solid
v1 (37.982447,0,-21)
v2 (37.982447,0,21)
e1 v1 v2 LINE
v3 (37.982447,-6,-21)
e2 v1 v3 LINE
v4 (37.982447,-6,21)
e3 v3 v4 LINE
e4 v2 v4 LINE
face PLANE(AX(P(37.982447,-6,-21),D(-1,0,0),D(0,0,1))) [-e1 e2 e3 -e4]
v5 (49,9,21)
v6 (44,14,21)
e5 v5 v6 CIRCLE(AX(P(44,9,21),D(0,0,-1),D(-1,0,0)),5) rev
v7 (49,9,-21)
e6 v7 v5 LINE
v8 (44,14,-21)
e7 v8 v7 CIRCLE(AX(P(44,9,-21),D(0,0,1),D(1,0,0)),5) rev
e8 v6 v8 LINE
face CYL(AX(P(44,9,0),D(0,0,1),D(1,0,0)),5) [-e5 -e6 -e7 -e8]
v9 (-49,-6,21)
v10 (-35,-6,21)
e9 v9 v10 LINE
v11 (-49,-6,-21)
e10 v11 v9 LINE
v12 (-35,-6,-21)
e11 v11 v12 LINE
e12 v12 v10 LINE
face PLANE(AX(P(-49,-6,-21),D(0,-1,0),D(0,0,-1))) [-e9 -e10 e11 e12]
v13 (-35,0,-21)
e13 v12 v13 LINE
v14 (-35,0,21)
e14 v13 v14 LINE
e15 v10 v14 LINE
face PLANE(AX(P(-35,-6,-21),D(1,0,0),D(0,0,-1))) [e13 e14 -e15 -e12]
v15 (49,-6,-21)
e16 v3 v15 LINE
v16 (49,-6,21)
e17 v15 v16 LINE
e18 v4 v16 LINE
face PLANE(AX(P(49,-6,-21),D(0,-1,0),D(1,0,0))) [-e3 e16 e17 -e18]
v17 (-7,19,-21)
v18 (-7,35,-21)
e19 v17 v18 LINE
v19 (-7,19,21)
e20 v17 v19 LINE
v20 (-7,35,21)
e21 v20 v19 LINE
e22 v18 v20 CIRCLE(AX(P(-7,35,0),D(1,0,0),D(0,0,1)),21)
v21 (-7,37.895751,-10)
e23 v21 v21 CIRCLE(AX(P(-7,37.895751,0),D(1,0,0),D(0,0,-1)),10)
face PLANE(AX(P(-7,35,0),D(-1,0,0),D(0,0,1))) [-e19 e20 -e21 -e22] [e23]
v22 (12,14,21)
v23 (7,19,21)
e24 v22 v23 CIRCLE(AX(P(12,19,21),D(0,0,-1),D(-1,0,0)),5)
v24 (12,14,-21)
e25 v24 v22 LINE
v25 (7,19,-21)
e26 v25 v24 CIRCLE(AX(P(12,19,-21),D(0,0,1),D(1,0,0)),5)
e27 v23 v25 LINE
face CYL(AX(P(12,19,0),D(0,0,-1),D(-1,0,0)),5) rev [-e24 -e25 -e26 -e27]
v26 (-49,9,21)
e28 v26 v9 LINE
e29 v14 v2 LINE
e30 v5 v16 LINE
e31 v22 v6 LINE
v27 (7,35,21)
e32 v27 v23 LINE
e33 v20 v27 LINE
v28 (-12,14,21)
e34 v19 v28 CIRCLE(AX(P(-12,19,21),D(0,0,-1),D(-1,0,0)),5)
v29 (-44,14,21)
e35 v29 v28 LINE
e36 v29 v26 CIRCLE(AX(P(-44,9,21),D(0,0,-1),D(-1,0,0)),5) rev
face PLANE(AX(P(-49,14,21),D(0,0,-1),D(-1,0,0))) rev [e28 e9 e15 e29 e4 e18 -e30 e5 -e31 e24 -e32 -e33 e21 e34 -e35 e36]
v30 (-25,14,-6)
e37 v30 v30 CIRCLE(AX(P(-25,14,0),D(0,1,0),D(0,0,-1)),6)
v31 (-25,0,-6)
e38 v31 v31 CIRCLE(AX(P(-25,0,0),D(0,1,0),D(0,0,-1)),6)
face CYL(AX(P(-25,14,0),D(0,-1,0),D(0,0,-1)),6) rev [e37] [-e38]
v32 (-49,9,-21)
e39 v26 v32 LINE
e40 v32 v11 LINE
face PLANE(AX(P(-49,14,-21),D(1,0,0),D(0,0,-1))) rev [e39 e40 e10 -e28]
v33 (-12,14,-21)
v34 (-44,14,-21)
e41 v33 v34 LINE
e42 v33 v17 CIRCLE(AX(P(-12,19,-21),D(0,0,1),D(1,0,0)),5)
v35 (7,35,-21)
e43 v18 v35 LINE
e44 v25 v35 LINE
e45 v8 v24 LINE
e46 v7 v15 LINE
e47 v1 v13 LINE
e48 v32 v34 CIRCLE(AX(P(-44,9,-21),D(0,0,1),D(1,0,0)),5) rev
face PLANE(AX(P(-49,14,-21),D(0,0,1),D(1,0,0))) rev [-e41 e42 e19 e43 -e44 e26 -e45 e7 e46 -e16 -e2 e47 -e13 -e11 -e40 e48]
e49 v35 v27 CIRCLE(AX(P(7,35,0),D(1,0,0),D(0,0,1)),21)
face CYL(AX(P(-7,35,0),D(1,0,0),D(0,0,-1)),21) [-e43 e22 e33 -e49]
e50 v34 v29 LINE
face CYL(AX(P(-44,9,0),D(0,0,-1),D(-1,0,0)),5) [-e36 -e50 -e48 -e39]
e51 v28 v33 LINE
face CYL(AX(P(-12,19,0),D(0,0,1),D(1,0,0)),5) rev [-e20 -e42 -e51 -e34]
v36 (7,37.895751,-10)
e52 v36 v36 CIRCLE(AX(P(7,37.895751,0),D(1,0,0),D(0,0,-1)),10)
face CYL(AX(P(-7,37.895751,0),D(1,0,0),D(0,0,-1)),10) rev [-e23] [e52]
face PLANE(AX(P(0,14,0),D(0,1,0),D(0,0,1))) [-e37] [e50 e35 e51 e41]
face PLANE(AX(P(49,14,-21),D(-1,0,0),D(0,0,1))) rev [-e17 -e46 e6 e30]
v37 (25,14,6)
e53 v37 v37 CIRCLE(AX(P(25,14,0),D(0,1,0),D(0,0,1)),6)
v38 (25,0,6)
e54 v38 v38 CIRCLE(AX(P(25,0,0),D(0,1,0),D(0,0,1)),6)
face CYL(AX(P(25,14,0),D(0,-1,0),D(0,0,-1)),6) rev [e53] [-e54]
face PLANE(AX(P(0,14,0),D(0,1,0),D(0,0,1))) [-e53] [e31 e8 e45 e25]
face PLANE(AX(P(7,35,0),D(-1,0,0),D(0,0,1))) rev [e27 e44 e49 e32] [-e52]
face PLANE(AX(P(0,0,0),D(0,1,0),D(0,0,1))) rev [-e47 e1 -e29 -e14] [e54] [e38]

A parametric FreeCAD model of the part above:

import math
import FreeCAD as App
import Part
import Sketcher
from FreeCAD import Vector


def edges_at(feature, points):
    """Names of the edges that pass closest to the given points."""
    edges = feature.Shape.Edges
    near = lambda p: min(range(len(edges)), key=lambda i: edges[i].distToShape(Part.Vertex(*p))[0])
    return sorted({f"Edge{near(p) + 1}" for p in points})

doc = App.newDocument("Part")
body = doc.addObject("PartDesign::Body", "Body")

sketch1 = body.newObject("Sketcher::SketchObject", "Sketch")
sketch1.AttachmentSupport = (doc.getObject("XZ_Plane"), [""])
sketch1.MapMode = "FlatFace"
sketch1.addGeometry(Part.LineSegment(Vector(-49, -21, 0), Vector(-49, 21, 0)), False)
sketch1.addGeometry(Part.LineSegment(Vector(-49, 21, 0), Vector(49, 21, 0)), False)
sketch1.addGeometry(Part.LineSegment(Vector(49, 21, 0), Vector(49, -21, 0)), False)
sketch1.addGeometry(Part.LineSegment(Vector(49, -21, 0), Vector(-49, -21, 0)), False)
sketch1.addConstraint(Sketcher.Constraint("Coincident", 0, 2, 1, 1))
sketch1.addConstraint(Sketcher.Constraint("Coincident", 1, 2, 2, 1))
sketch1.addConstraint(Sketcher.Constraint("Coincident", 2, 2, 3, 1))
sketch1.addConstraint(Sketcher.Constraint("Coincident", 3, 2, 0, 1))
sketch1.addConstraint(Sketcher.Constraint("Vertical", 0))
sketch1.addConstraint(Sketcher.Constraint("Horizontal", 1))
sketch1.addConstraint(Sketcher.Constraint("Vertical", 2))
sketch1.addConstraint(Sketcher.Constraint("Horizontal", 3))
sketch1.addConstraint(Sketcher.Constraint("Symmetric", 0, 2, 2, 2, -1, 1))
sketch1.addConstraint(Sketcher.Constraint("DistanceX", 1, 1, 1, 2, 98.0))
sketch1.addConstraint(Sketcher.Constraint("DistanceY", 0, 1, 0, 2, 42.0))
pad1 = body.newObject("PartDesign::Pad", "Pad")
pad1.Profile = sketch1
pad1.Length = 14
pad1.Reversed = True

sketch2 = body.newObject("Sketcher::SketchObject", "Sketch001")
sketch2.AttachmentSupport = (doc.getObject("XY_Plane"), [""])
sketch2.MapMode = "FlatFace"
sketch2.addGeometry(Part.LineSegment(Vector(38, 0, 0), Vector(38, -6, 0)), False)
sketch2.addGeometry(Part.LineSegment(Vector(38, -6, 0), Vector(49, -6, 0)), False)
sketch2.addGeometry(Part.LineSegment(Vector(49, -6, 0), Vector(49, 0, 0)), False)
sketch2.addGeometry(Part.LineSegment(Vector(49, 0, 0), Vector(38, 0, 0)), False)
sketch2.addConstraint(Sketcher.Constraint("Coincident", 0, 2, 1, 1))
sketch2.addConstraint(Sketcher.Constraint("Coincident", 1, 2, 2, 1))
sketch2.addConstraint(Sketcher.Constraint("Coincident", 2, 2, 3, 1))
sketch2.addConstraint(Sketcher.Constraint("Coincident", 3, 2, 0, 1))
sketch2.addConstraint(Sketcher.Constraint("Vertical", 0))
sketch2.addConstraint(Sketcher.Constraint("Horizontal", 1))
sketch2.addConstraint(Sketcher.Constraint("Vertical", 2))
sketch2.addConstraint(Sketcher.Constraint("Horizontal", 3))
sketch2.addConstraint(Sketcher.Constraint("PointOnObject", 2, 2, -1))
sketch2.addConstraint(Sketcher.Constraint("DistanceY", 0, 2, 0, 1, 6.0))
sketch2.addConstraint(Sketcher.Constraint("DistanceX", -1, 1, 1, 2, 49.0))
sketch2.addConstraint(Sketcher.Constraint("DistanceX", 1, 1, 1, 2, 11.017553))
pad2 = body.newObject("PartDesign::Pad", "Pad001")
pad2.Profile = sketch2
pad2.Type = "TwoLengths"
pad2.Length = 21
pad2.Length2 = 21
doc.recompute()

fillet = body.newObject("PartDesign::Fillet", "Fillet")
fillet.Base = (pad2, edges_at(pad2, [(49, 14, 0)]))
fillet.Radius = 5

sketch3 = body.newObject("Sketcher::SketchObject", "Sketch002")
sketch3.AttachmentSupport = (doc.getObject("XY_Plane"), [""])
sketch3.MapMode = "FlatFace"
sketch3.AttachmentOffset = App.Placement(Vector(0, 0, 21), App.Rotation())
sketch3.addGeometry(Part.LineSegment(Vector(-49, 0, 0), Vector(-49, -6, 0)), False)
sketch3.addGeometry(Part.LineSegment(Vector(-49, -6, 0), Vector(-35, -6, 0)), False)
sketch3.addGeometry(Part.LineSegment(Vector(-35, -6, 0), Vector(-35, 0, 0)), False)
sketch3.addGeometry(Part.LineSegment(Vector(-35, 0, 0), Vector(-49, 0, 0)), False)
sketch3.addConstraint(Sketcher.Constraint("Coincident", 0, 2, 1, 1))
sketch3.addConstraint(Sketcher.Constraint("Coincident", 1, 2, 2, 1))
sketch3.addConstraint(Sketcher.Constraint("Coincident", 2, 2, 3, 1))
sketch3.addConstraint(Sketcher.Constraint("Coincident", 3, 2, 0, 1))
sketch3.addConstraint(Sketcher.Constraint("Vertical", 0))
sketch3.addConstraint(Sketcher.Constraint("Horizontal", 1))
sketch3.addConstraint(Sketcher.Constraint("Vertical", 2))
sketch3.addConstraint(Sketcher.Constraint("Horizontal", 3))
sketch3.addConstraint(Sketcher.Constraint("PointOnObject", 2, 2, -1))
sketch3.addConstraint(Sketcher.Constraint("DistanceX", 1, 1, 1, 2, 14.0))
sketch3.addConstraint(Sketcher.Constraint("DistanceY", 0, 2, 0, 1, 6.0))
sketch3.addConstraint(Sketcher.Constraint("DistanceX", 0, 2, -1, 1, 49.0))
pad3 = body.newObject("PartDesign::Pad", "Pad002")
pad3.Profile = sketch3
pad3.Length = 42
pad3.Reversed = True
doc.recompute()

fillet2 = body.newObject("PartDesign::Fillet", "Fillet001")
fillet2.Base = (pad3, edges_at(pad3, [(-49, 14, 0)]))
fillet2.Radius = 5

sketch4 = body.newObject("Sketcher::SketchObject", "Sketch003")
sketch4.AttachmentSupport = (doc.getObject("XZ_Plane"), [""])
sketch4.MapMode = "FlatFace"
sketch4.addGeometry(Part.Circle(Vector(25, 0, 0), Vector(0, 0, 1), 6), False)
sketch4.addGeometry(Part.Circle(Vector(-25, 0, 0), Vector(0, 0, 1), 6), False)
sketch4.addConstraint(Sketcher.Constraint("Equal", 0, 1))
sketch4.addConstraint(Sketcher.Constraint("Symmetric", 0, 3, 1, 3, -1, 1))
sketch4.addConstraint(Sketcher.Constraint("PointOnObject", 0, 3, -1))
sketch4.addConstraint(Sketcher.Constraint("Diameter", 0, 12.0))
sketch4.addConstraint(Sketcher.Constraint("DistanceX", -1, 1, 0, 3, 25.0))
pocket1 = body.newObject("PartDesign::Pocket", "Pocket")
pocket1.Profile = sketch4
pocket1.Length = 14

sketch5 = body.newObject("Sketcher::SketchObject", "Sketch004")
sketch5.AttachmentSupport = (doc.getObject("YZ_Plane"), [""])
sketch5.MapMode = "FlatFace"
sketch5.addGeometry(Part.LineSegment(Vector(35, 21, 0), Vector(14, 21, 0)), False)
sketch5.addGeometry(Part.LineSegment(Vector(14, 21, 0), Vector(14, -21, 0)), False)
sketch5.addGeometry(Part.LineSegment(Vector(14, -21, 0), Vector(35, -21, 0)), False)
sketch5.addGeometry(Part.ArcOfCircle(Part.Circle(Vector(35, 0, 0), Vector(0, 0, 1), 21), math.radians(-90), math.radians(90)), False)
sketch5.addGeometry(Part.Circle(Vector(38, 0, 0), Vector(0, 0, 1), 10), False)
sketch5.addConstraint(Sketcher.Constraint("Coincident", 0, 2, 1, 1))
sketch5.addConstraint(Sketcher.Constraint("Coincident", 1, 2, 2, 1))
sketch5.addConstraint(Sketcher.Constraint("Tangent", 2, 2, 3, 1))
sketch5.addConstraint(Sketcher.Constraint("Tangent", 3, 2, 0, 1))
sketch5.addConstraint(Sketcher.Constraint("Horizontal", 0))
sketch5.addConstraint(Sketcher.Constraint("Vertical", 1))
sketch5.addConstraint(Sketcher.Constraint("Horizontal", 2))
sketch5.addConstraint(Sketcher.Constraint("PointOnObject", 3, 3, -1))
sketch5.addConstraint(Sketcher.Constraint("PointOnObject", 4, 3, -1))
sketch5.addConstraint(Sketcher.Constraint("Diameter", 4, 20.0))
sketch5.addConstraint(Sketcher.Constraint("Radius", 3, 21.0))
sketch5.addConstraint(Sketcher.Constraint("DistanceX", 0, 2, 0, 1, 21.0))
sketch5.addConstraint(Sketcher.Constraint("DistanceX", -1, 1, 3, 3, 35.0))
sketch5.addConstraint(Sketcher.Constraint("DistanceX", -1, 1, 4, 3, 37.895751))
pad4 = body.newObject("PartDesign::Pad", "Pad003")
pad4.Profile = sketch5
pad4.Type = "TwoLengths"
pad4.Length = 7
pad4.Length2 = 7
doc.recompute()

fillet3 = body.newObject("PartDesign::Fillet", "Fillet002")
fillet3.Base = (pad4, edges_at(pad4, [(7, 14, 0)]))
fillet3.Radius = 5
doc.recompute()

fillet4 = body.newObject("PartDesign::Fillet", "Fillet003")
fillet4.Base = (fillet3, edges_at(fillet3, [(-7, 14, 0)]))
fillet4.Radius = 5

doc.recompute()
